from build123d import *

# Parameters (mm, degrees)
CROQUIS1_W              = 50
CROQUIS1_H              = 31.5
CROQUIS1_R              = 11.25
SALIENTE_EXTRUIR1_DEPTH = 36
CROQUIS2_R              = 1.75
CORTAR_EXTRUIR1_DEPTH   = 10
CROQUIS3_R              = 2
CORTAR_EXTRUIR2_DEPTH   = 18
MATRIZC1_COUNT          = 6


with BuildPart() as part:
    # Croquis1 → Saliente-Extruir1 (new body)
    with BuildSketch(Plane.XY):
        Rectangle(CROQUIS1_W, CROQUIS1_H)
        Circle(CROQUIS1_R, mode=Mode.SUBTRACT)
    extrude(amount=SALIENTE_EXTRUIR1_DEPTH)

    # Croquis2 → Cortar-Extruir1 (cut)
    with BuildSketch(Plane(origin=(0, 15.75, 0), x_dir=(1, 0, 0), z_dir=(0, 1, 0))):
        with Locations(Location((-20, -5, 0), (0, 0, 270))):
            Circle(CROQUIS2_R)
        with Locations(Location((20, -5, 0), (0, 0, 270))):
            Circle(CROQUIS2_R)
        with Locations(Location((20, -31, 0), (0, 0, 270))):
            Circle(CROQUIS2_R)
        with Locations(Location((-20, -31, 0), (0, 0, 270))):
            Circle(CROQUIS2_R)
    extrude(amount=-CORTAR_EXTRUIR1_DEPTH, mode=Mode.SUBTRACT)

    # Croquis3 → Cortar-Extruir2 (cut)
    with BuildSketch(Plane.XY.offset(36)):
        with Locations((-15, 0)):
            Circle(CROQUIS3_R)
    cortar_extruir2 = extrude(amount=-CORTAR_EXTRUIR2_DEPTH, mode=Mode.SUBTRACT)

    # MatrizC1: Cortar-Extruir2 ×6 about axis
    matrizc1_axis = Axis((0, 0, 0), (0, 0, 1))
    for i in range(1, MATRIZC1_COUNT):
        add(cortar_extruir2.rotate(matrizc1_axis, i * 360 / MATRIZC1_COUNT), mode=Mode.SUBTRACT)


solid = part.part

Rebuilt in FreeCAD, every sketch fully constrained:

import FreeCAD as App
import Part
import Sketcher
from FreeCAD import Vector
Q = App.Units.Quantity

doc = App.newDocument("Part")
params = doc.addObject("Spreadsheet::Sheet", "Params")
for row, (alias, value) in enumerate([
    ("sketch1_diameter", "22.5 mm"),
    ("sketch1_width", "50 mm"),
    ("sketch1_height", "31.5 mm"),
    ("pad1_length", "36 mm"),
    ("sketch2_diameter", "3.5 mm"),
    ("pocket1_length", "10 mm"),
    ("sketch3_diameter", "4 mm"),
    ("pocket2_length", "18 mm"),
], start=1):
    params.set(f"A{row}", alias)
    params.set(f"B{row}", "=" + value)
    params.setAlias(f"B{row}", alias)

body = doc.addObject("PartDesign::Body", "Body")

sketch1 = body.newObject("Sketcher::SketchObject", "Sketch")
sketch1.AttachmentSupport = (doc.getObject("XY_Plane"), [""])
sketch1.MapMode = "FlatFace"
sketch1.addGeometry([
    Part.LineSegment(Vector(-25, 16, 0), Vector(-25, -16, 0)),
    Part.LineSegment(Vector(-25, -16, 0), Vector(25, -16, 0)),
    Part.LineSegment(Vector(25, -16, 0), Vector(25, 16, 0)),
    Part.LineSegment(Vector(25, 16, 0), Vector(-25, 16, 0)),
    Part.Circle(Vector(0, 0, 0), Vector(0, 0, 1), 11),
], False)
sketch1.addConstraint([
    Sketcher.Constraint("Coincident", 0, 2, 1, 1),
    Sketcher.Constraint("Coincident", 1, 2, 2, 1),
    Sketcher.Constraint("Coincident", 2, 2, 3, 1),
    Sketcher.Constraint("Coincident", 3, 2, 0, 1),
    Sketcher.Constraint("Vertical", 0),
    Sketcher.Constraint("Horizontal", 1),
    Sketcher.Constraint("Vertical", 2),
    Sketcher.Constraint("Horizontal", 3),
    Sketcher.Constraint("Coincident", 4, 3, -1, 1),
    Sketcher.Constraint("Symmetric", 0, 2, 2, 2, -1, 1),
    Sketcher.Constraint("Diameter", 4, Q("22.5 mm")),
    Sketcher.Constraint("DistanceX", 1, 1, 1, 2, Q("50 mm")),
    Sketcher.Constraint("DistanceY", 0, 2, 0, 1, Q("31.5 mm")),
])
sketch1.setExpression("Constraints[10]", "Params.sketch1_diameter")
sketch1.setExpression("Constraints[11]", "Params.sketch1_width")
sketch1.setExpression("Constraints[12]", "Params.sketch1_height")
pad1 = body.newObject("PartDesign::Pad", "Pad")
pad1.Profile = sketch1
pad1.setExpression("Length", "Params.pad1_length")

sketch2 = body.newObject("Sketcher::SketchObject", "Sketch001")
sketch2.AttachmentSupport = (doc.getObject("XZ_Plane"), [""])
sketch2.MapMode = "FlatFace"
sketch2.AttachmentOffset = App.Placement(Vector(0, 0, -15.75), App.Rotation())
sketch2.addGeometry([
    Part.Circle(Vector(-20, 5, 0), Vector(0, 0, 1), 1.8),
    Part.Circle(Vector(20, 5, 0), Vector(0, 0, 1), 1.8),
    Part.Circle(Vector(20, 31, 0), Vector(0, 0, 1), 1.8),
    Part.Circle(Vector(-20, 31, 0), Vector(0, 0, 1), 1.8),
], False)
sketch2.addConstraint([
    Sketcher.Constraint("Equal", 0, 1),
    Sketcher.Constraint("Equal", 1, 2),
    Sketcher.Constraint("Equal", 2, 3),
    Sketcher.Constraint("Symmetric", 0, 3, 1, 3, -2),
    Sketcher.Constraint("Symmetric", 2, 3, 3, 3, -2),
    Sketcher.Constraint("Vertical", 1, 3, 2, 3),
    Sketcher.Constraint("Diameter", 0, Q("3.5 mm")),
    Sketcher.Constraint("DistanceX", 0, 3, -1, 1, Q("20 mm")),
    Sketcher.Constraint("DistanceY", -1, 1, 0, 3, Q("5 mm")),
    Sketcher.Constraint("DistanceY", -1, 1, 2, 3, Q("31 mm")),
])
sketch2.setExpression("Constraints[6]", "Params.sketch2_diameter")
pocket1 = body.newObject("PartDesign::Pocket", "Pocket")
pocket1.Profile = sketch2
pocket1.setExpression("Length", "Params.pocket1_length")
pocket1.Reversed = True

sketch3 = body.newObject("Sketcher::SketchObject", "Sketch002")
sketch3.AttachmentSupport = (doc.getObject("XY_Plane"), [""])
sketch3.MapMode = "FlatFace"
sketch3.AttachmentOffset = App.Placement(Vector(0, 0, 36), App.Rotation())
sketch3.addGeometry(Part.Circle(Vector(-15, 0, 0), Vector(0, 0, 1), 2), False)
sketch3.addConstraint([
    Sketcher.Constraint("PointOnObject", 0, 3, -1),
    Sketcher.Constraint("Diameter", 0, Q("4 mm")),
    Sketcher.Constraint("DistanceX", 0, 3, -1, 1, Q("15 mm")),
])
sketch3.setExpression("Constraints[1]", "Params.sketch3_diameter")
pocket2 = body.newObject("PartDesign::Pocket", "Pocket001")
pocket2.Profile = sketch3
pocket2.setExpression("Length", "Params.pocket2_length")
doc.recompute()

polarpattern = body.newObject("PartDesign::PolarPattern", "PolarPattern")
polarpattern.Originals = [pocket2]
polarpattern.Axis = (doc.getObject("Z_Axis"), [""])
polarpattern.Angle = 360
polarpattern.Occurrences = 6
body.Tip = polarpattern

doc.recompute()
